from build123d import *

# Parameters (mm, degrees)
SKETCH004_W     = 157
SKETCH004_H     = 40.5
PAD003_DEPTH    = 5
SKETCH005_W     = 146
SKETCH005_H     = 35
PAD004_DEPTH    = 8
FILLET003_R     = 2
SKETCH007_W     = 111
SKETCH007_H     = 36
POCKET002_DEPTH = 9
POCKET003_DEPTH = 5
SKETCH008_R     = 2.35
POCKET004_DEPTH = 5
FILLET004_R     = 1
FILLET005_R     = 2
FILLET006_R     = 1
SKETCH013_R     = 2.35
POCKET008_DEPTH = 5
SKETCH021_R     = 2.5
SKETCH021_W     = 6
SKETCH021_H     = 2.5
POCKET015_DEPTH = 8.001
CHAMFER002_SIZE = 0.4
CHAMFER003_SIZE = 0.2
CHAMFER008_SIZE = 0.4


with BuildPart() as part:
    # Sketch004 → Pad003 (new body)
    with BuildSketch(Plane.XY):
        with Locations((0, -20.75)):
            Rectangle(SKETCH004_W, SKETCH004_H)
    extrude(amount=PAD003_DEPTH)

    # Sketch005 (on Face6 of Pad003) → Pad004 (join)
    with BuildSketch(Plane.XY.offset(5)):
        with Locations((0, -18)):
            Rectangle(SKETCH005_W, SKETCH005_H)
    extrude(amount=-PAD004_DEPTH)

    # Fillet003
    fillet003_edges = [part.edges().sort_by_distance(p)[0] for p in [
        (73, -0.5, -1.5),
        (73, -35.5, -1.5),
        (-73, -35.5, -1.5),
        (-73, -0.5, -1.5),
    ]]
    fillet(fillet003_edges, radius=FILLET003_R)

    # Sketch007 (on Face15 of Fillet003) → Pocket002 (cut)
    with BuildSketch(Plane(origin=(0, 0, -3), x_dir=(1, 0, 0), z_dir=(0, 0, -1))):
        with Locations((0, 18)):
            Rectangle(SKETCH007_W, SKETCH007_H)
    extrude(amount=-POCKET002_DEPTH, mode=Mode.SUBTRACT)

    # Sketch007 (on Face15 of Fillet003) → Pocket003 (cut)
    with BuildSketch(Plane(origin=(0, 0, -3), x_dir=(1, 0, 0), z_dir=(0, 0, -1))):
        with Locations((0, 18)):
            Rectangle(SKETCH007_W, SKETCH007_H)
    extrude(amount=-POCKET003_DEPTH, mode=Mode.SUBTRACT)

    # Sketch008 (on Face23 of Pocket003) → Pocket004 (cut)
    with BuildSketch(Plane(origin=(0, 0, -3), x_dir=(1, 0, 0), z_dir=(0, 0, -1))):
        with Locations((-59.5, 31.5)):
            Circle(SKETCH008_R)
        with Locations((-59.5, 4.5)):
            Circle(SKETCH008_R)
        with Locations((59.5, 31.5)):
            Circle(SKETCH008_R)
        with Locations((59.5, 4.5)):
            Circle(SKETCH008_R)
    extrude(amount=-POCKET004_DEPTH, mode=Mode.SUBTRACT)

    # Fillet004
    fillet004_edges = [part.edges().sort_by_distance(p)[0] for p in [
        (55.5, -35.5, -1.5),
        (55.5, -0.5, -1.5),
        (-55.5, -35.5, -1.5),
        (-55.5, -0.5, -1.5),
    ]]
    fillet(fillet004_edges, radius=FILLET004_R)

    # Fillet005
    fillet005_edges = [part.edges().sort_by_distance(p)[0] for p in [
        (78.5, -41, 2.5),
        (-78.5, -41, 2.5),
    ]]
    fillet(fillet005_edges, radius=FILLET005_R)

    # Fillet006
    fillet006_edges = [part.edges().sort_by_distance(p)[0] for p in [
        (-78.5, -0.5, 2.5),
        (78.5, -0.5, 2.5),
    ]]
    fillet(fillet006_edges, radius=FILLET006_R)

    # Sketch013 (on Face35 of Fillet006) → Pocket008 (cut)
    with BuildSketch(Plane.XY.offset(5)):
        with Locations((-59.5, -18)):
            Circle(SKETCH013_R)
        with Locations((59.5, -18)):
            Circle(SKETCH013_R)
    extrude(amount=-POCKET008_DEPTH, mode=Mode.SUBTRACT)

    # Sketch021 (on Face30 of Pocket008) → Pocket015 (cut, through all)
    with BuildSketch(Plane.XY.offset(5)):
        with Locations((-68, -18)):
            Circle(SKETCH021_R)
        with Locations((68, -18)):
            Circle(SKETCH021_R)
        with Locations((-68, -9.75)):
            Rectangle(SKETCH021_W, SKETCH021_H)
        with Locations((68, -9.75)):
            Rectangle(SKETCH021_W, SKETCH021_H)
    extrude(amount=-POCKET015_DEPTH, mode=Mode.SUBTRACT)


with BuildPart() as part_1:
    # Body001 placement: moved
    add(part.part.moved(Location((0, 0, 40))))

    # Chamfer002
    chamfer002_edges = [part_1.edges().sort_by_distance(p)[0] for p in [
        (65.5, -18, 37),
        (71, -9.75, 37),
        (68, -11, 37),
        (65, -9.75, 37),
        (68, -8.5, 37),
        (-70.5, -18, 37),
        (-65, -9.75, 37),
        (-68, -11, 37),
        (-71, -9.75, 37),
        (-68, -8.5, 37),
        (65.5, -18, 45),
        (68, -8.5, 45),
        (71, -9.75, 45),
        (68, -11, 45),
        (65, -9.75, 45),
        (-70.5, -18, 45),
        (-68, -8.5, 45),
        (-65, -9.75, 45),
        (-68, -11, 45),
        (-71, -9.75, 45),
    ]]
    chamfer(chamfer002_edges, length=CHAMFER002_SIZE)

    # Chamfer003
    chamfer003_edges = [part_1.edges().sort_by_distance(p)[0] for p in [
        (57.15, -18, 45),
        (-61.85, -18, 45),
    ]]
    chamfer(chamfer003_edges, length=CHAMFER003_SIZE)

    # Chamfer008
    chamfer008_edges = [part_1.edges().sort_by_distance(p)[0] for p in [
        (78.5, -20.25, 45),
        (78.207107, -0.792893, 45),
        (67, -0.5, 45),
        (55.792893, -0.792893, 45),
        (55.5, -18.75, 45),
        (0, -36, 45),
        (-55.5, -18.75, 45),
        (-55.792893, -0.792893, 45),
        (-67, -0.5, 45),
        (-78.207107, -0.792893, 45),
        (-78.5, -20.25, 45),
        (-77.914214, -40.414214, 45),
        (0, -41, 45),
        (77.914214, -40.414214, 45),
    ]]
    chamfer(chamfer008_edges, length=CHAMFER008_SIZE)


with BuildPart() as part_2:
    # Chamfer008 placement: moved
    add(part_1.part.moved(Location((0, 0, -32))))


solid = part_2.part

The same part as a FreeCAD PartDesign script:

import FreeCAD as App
import Part
import Sketcher

V = App.Vector


def edges_at(feature, points):
    """Names of the edges that pass closest to the given points."""
    edges = feature.Shape.Edges
    near = lambda p: min(range(len(edges)), key=lambda i: edges[i].distToShape(Part.Vertex(*p))[0])
    return sorted({f"Edge{near(p) + 1}" for p in points})

doc = App.newDocument("Part")
body = doc.addObject("PartDesign::Body", "Body")

# Sketch on XY plane
sketch1 = body.newObject("Sketcher::SketchObject", "Sketch")
sketch1.AttachmentSupport = (doc.getObject("XY_Plane"), [""])
sketch1.MapMode = "FlatFace"
sketch1.addGeometry([
    Part.LineSegment(V(-78, 0, 0), V(-78, -41, 0)),
    Part.LineSegment(V(-78, -41, 0), V(78, -41, 0)),
    Part.LineSegment(V(78, -41, 0), V(78, 0, 0)),
    Part.LineSegment(V(78, 0, 0), V(-78, 0, 0)),
], False)
sketch1.addConstraint([
    Sketcher.Constraint("Coincident", 0, 2, 1, 1),
    Sketcher.Constraint("Coincident", 1, 2, 2, 1),
    Sketcher.Constraint("Coincident", 2, 2, 3, 1),
    Sketcher.Constraint("Coincident", 3, 2, 0, 1),
    Sketcher.Constraint("Vertical", 0),
    Sketcher.Constraint("Horizontal", 1),
    Sketcher.Constraint("Vertical", 2),
    Sketcher.Constraint("Horizontal", 3),
    Sketcher.Constraint("DistanceX", 1, 1, 1, 2, 157.0),
    Sketcher.Constraint("DistanceY", 0, 2, 0, 1, 40.5),
    Sketcher.Constraint("DistanceY", 0, 2, -1, 1, 41.0),
    Sketcher.Constraint("DistanceX", 0, 2, -1, 1, 78.5),
])
pad1 = body.newObject("PartDesign::Pad", "Pad")
pad1.Profile = sketch1
pad1.Length = 5

# Sketch on XY plane
sketch2 = body.newObject("Sketcher::SketchObject", "Sketch001")
sketch2.AttachmentSupport = (doc.getObject("XY_Plane"), [""])
sketch2.MapMode = "FlatFace"
sketch2.AttachmentOffset = App.Placement(V(0, 0, 5), App.Rotation())
sketch2.addGeometry([
    Part.LineSegment(V(-73, 0, 0), V(-73, -36, 0)),
    Part.LineSegment(V(-73, -36, 0), V(73, -36, 0)),
    Part.LineSegment(V(73, -36, 0), V(73, 0, 0)),
    Part.LineSegment(V(73, 0, 0), V(-73, 0, 0)),
], False)
sketch2.addConstraint([
    Sketcher.Constraint("Coincident", 0, 2, 1, 1),
    Sketcher.Constraint("Coincident", 1, 2, 2, 1),
    Sketcher.Constraint("Coincident", 2, 2, 3, 1),
    Sketcher.Constraint("Coincident", 3, 2, 0, 1),
    Sketcher.Constraint("Vertical", 0),
    Sketcher.Constraint("Horizontal", 1),
    Sketcher.Constraint("Vertical", 2),
    Sketcher.Constraint("Horizontal", 3),
    Sketcher.Constraint("DistanceX", 1, 1, 1, 2, 146.0),
    Sketcher.Constraint("DistanceY", 0, 2, 0, 1, 35.0),
    Sketcher.Constraint("DistanceX", 0, 2, -1, 1, 73.0),
    Sketcher.Constraint("DistanceY", 0, 2, -1, 1, 35.5),
])
pad2 = body.newObject("PartDesign::Pad", "Pad001")
pad2.Profile = sketch2
pad2.Length = 8
pad2.Reversed = True
doc.recompute()

fillet = body.newObject("PartDesign::Fillet", "Fillet")
fillet.Base = (pad2, edges_at(pad2, [
    (73, -0.5, -1.5),
    (73, -35.5, -1.5),
    (-73, -35.5, -1.5),
    (-73, -0.5, -1.5),
]))
fillet.Radius = 2

# Sketch on XY plane
sketch3 = body.newObject("Sketcher::SketchObject", "Sketch002")
sketch3.AttachmentSupport = (doc.getObject("XY_Plane"), [""])
sketch3.MapMode = "FlatFace"
sketch3.AttachmentOffset = App.Placement(V(0, 0, -3), App.Rotation())
sketch3.addGeometry([
    Part.LineSegment(V(-56, -36, 0), V(-56, 0, 0)),
    Part.LineSegment(V(-56, 0, 0), V(56, 0, 0)),
    Part.LineSegment(V(56, 0, 0), V(56, -36, 0)),
    Part.LineSegment(V(56, -36, 0), V(-56, -36, 0)),
], False)
sketch3.addConstraint([
    Sketcher.Constraint("Coincident", 0, 2, 1, 1),
    Sketcher.Constraint("Coincident", 1, 2, 2, 1),
    Sketcher.Constraint("Coincident", 2, 2, 3, 1),
    Sketcher.Constraint("Coincident", 3, 2, 0, 1),
    Sketcher.Constraint("Vertical", 0),
    Sketcher.Constraint("Horizontal", 1),
    Sketcher.Constraint("Vertical", 2),
    Sketcher.Constraint("Horizontal", 3),
    Sketcher.Constraint("Symmetric", 0, 2, 1, 2, -1, 1),
    Sketcher.Constraint("DistanceX", 1, 1, 1, 2, 111.0),
    Sketcher.Constraint("DistanceY", 0, 1, 0, 2, 36.0),
])
pocket1 = body.newObject("PartDesign::Pocket", "Pocket")
pocket1.Profile = sketch3
pocket1.Length = 9
pocket1.Reversed = True

# Sketch on XY plane
sketch4 = body.newObject("Sketcher::SketchObject", "Sketch003")
sketch4.AttachmentSupport = (doc.getObject("XY_Plane"), [""])
sketch4.MapMode = "FlatFace"
sketch4.AttachmentOffset = App.Placement(V(0, 0, -3), App.Rotation())
sketch4.addGeometry([
    Part.LineSegment(V(-56, -36, 0), V(-56, 0, 0)),
    Part.LineSegment(V(-56, 0, 0), V(56, 0, 0)),
    Part.LineSegment(V(56, 0, 0), V(56, -36, 0)),
    Part.LineSegment(V(56, -36, 0), V(-56, -36, 0)),
], False)
sketch4.addConstraint([
    Sketcher.Constraint("Coincident", 0, 2, 1, 1),
    Sketcher.Constraint("Coincident", 1, 2, 2, 1),
    Sketcher.Constraint("Coincident", 2, 2, 3, 1),
    Sketcher.Constraint("Coincident", 3, 2, 0, 1),
    Sketcher.Constraint("Vertical", 0),
    Sketcher.Constraint("Horizontal", 1),
    Sketcher.Constraint("Vertical", 2),
    Sketcher.Constraint("Horizontal", 3),
    Sketcher.Constraint("Symmetric", 0, 2, 1, 2, -1, 1),
    Sketcher.Constraint("DistanceX", 1, 1, 1, 2, 111.0),
    Sketcher.Constraint("DistanceY", 0, 1, 0, 2, 36.0),
])
pocket2 = body.newObject("PartDesign::Pocket", "Pocket001")
pocket2.Profile = sketch4
pocket2.Length = 5
pocket2.Reversed = True

# Sketch on XY plane
sketch5 = body.newObject("Sketcher::SketchObject", "Sketch004")
sketch5.AttachmentSupport = (doc.getObject("XY_Plane"), [""])
sketch5.MapMode = "FlatFace"
sketch5.AttachmentOffset = App.Placement(V(0, 0, -3), App.Rotation())
sketch5.addGeometry([
    Part.Circle(V(-59.5, -31.5, 0), V(0, 0, 1), 2.4),
    Part.Circle(V(-59.5, -4.5, 0), V(0, 0, 1), 2.4),
    Part.Circle(V(59.5, -31.5, 0), V(0, 0, 1), 2.4),
    Part.Circle(V(59.5, -4.5, 0), V(0, 0, 1), 2.4),
], False)
sketch5.addConstraint([
    Sketcher.Constraint("Equal", 0, 1),
    Sketcher.Constraint("Equal", 1, 2),
    Sketcher.Constraint("Equal", 2, 3),
    Sketcher.Constraint("Symmetric", 0, 3, 2, 3, -2),
    Sketcher.Constraint("Symmetric", 1, 3, 3, 3, -2),
    Sketcher.Constraint("Vertical", 0, 3, 1, 3),
    Sketcher.Constraint("Diameter", 0, 4.7),
    Sketcher.Constraint("DistanceY", 0, 3, 1, 3, 27.0),
    Sketcher.Constraint("DistanceX", 0, 3, 2, 3, 119.0),
    Sketcher.Constraint("DistanceY", 0, 3, -1, 1, 31.5),
])
pocket3 = body.newObject("PartDesign::Pocket", "Pocket002")
pocket3.Profile = sketch5
pocket3.Length = 5
pocket3.Reversed = True
doc.recompute()

fillet2 = body.newObject("PartDesign::Fillet", "Fillet001")
fillet2.Base = (pocket3, edges_at(pocket3, [
    (55.5, -35.5, -1.5),
    (55.5, -0.5, 1),
    (-55.5, -35.5, -1.5),
    (-55.5, -0.5, 1),
]))
fillet2.Radius = 1
doc.recompute()

fillet3 = body.newObject("PartDesign::Fillet", "Fillet002")
fillet3.Base = (fillet2, edges_at(fillet2, [(78.5, -41, 2.5), (-78.5, -41, 2.5)]))
fillet3.Radius = 2
doc.recompute()

fillet4 = body.newObject("PartDesign::Fillet", "Fillet003")
fillet4.Base = (fillet3, edges_at(fillet3, [(-78.5, -0.5, 2.5), (78.5, -0.5, 2.5)]))
fillet4.Radius = 1

# Sketch on XY plane
sketch6 = body.newObject("Sketcher::SketchObject", "Sketch005")
sketch6.AttachmentSupport = (doc.getObject("XY_Plane"), [""])
sketch6.MapMode = "FlatFace"
sketch6.AttachmentOffset = App.Placement(V(0, 0, 5), App.Rotation())
sketch6.addGeometry([
    Part.Circle(V(-59.5, -18, 0), V(0, 0, 1), 2.4),
    Part.Circle(V(59.5, -18, 0), V(0, 0, 1), 2.4),
], False)
sketch6.addConstraint([
    Sketcher.Constraint("Equal", 0, 1),
    Sketcher.Constraint("Symmetric", 0, 3, 1, 3, -2),
    Sketcher.Constraint("Diameter", 0, 4.7),
    Sketcher.Constraint("DistanceY", 0, 3, -1, 1, 18.0),
    Sketcher.Constraint("DistanceX", 0, 3, 1, 3, 119.0),
])
pocket4 = body.newObject("PartDesign::Pocket", "Pocket003")
pocket4.Profile = sketch6
pocket4.Length = 5

# Sketch on XY plane
sketch7 = body.newObject("Sketcher::SketchObject", "Sketch006")
sketch7.AttachmentSupport = (doc.getObject("XY_Plane"), [""])
sketch7.MapMode = "FlatFace"
sketch7.AttachmentOffset = App.Placement(V(0, 0, 5), App.Rotation())
sketch7.addGeometry([
    Part.Circle(V(-68, -18, 0), V(0, 0, 1), 2.5),  # 0
    Part.Circle(V(68, -18, 0), V(0, 0, 1), 2.5),  # 1
    Part.LineSegment(V(-71, -8.5, 0), V(-71, -11, 0)),  # 2
    Part.LineSegment(V(-71, -11, 0), V(-65, -11, 0)),  # 3
    Part.LineSegment(V(-65, -11, 0), V(-65, -8.5, 0)),  # 4
    Part.LineSegment(V(-65, -8.5, 0), V(-71, -8.5, 0)),  # 5
    Part.LineSegment(V(65, -8.5, 0), V(65, -11, 0)),  # 6
    Part.LineSegment(V(65, -11, 0), V(71, -11, 0)),  # 7
    Part.LineSegment(V(71, -11, 0), V(71, -8.5, 0)),  # 8
    Part.LineSegment(V(71, -8.5, 0), V(65, -8.5, 0)),  # 9
], False)
sketch7.addConstraint([
    Sketcher.Constraint("Coincident", 2, 2, 3, 1),
    Sketcher.Constraint("Coincident", 3, 2, 4, 1),
    Sketcher.Constraint("Coincident", 4, 2, 5, 1),
    Sketcher.Constraint("Coincident", 5, 2, 2, 1),
    Sketcher.Constraint("Coincident", 6, 2, 7, 1),
    Sketcher.Constraint("Coincident", 7, 2, 8, 1),
    Sketcher.Constraint("Coincident", 8, 2, 9, 1),
    Sketcher.Constraint("Coincident", 9, 2, 6, 1),
    Sketcher.Constraint("Vertical", 2),
    Sketcher.Constraint("Horizontal", 3),
    Sketcher.Constraint("Vertical", 4),
    Sketcher.Constraint("Horizontal", 5),
    Sketcher.Constraint("Vertical", 6),
    Sketcher.Constraint("Horizontal", 7),
    Sketcher.Constraint("Vertical", 8),
    Sketcher.Constraint("Horizontal", 9),
    Sketcher.Constraint("Equal", 0, 1),
    Sketcher.Constraint("Symmetric", 0, 3, 1, 3, -2),
    Sketcher.Constraint("Symmetric", 3, 2, 6, 2, -2),
    Sketcher.Constraint("Symmetric", 5, 2, 8, 2, -2),
    Sketcher.Constraint("Diameter", 0, 5.0),
    Sketcher.Constraint("DistanceX", 3, 1, 3, 2, 6.0),
    Sketcher.Constraint("DistanceY", 2, 2, 2, 1, 2.5),
    Sketcher.Constraint("DistanceX", 0, 3, -1, 1, 68.0),
    Sketcher.Constraint("DistanceY", 0, 3, -1, 1, 18.0),
    Sketcher.Constraint("DistanceX", 2, 2, -1, 1, 71.0),
    Sketcher.Constraint("DistanceY", 2, 2, -1, 1, 11.0),
])
pocket5 = body.newObject("PartDesign::Pocket", "Pocket004")
pocket5.Profile = sketch7
pocket5.Type = "ThroughAll"
body2 = doc.addObject("PartDesign::Body", "Body001")
doc.recompute()

body.Placement = App.Placement(V(0, 0, 40), App.Rotation(V(0, 0, 1), 0))
boolean = body2.newObject("PartDesign::Boolean", "Boolean")
boolean.Type = "Fuse"
boolean.addObjects([body])
doc.recompute()

chamfer = body2.newObject("PartDesign::Chamfer", "Chamfer")
chamfer.Base = (boolean, edges_at(boolean, [
    (65.5, -18, 37),
    (71, -9.75, 37),
    (68, -11, 37),
    (65, -9.75, 37),
    (68, -8.5, 37),
    (-70.5, -18, 37),
    (-65, -9.75, 37),
    (-68, -11, 37),
    (-71, -9.75, 37),
    (-68, -8.5, 37),
    (65.5, -18, 45),
    (68, -8.5, 45),
    (71, -9.75, 45),
    (68, -11, 45),
    (65, -9.75, 45),
    (-70.5, -18, 45),
    (-68, -8.5, 45),
    (-65, -9.75, 45),
    (-68, -11, 45),
    (-71, -9.75, 45),
]))
chamfer.Size = 0.4
doc.recompute()

chamfer2 = body2.newObject("PartDesign::Chamfer", "Chamfer001")
chamfer2.Base = (chamfer, edges_at(chamfer, [(57.15, -18, 45), (-61.85, -18, 45)]))
chamfer2.Size = 0.2
doc.recompute()

chamfer3 = body2.newObject("PartDesign::Chamfer", "Chamfer002")
chamfer3.Base = (chamfer2, edges_at(chamfer2, [
    (78.5, -20.25, 45),
    (78.207, -0.793, 45),
    (67, -0.5, 45),
    (55.793, -0.793, 45),
    (55.5, -18.75, 45),
    (0, -36, 45),
    (-55.5, -18.75, 45),
    (-55.793, -0.793, 45),
    (-67, -0.5, 45),
    (-78.207, -0.793, 45),
    (-78.5, -20.25, 45),
    (-77.914, -40.414, 45),
    (0, -41, 45),
    (77.914, -40.414, 45),
]))
chamfer3.Size = 0.4
body3 = doc.addObject("PartDesign::Body", "Body002")
doc.recompute()

body2.Placement = App.Placement(V(0, 0, -32), App.Rotation(V(0, 0, 1), 0))
boolean2 = body3.newObject("PartDesign::Boolean", "Boolean001")
boolean2.Type = "Fuse"
boolean2.addObjects([body2])

doc.recompute()
